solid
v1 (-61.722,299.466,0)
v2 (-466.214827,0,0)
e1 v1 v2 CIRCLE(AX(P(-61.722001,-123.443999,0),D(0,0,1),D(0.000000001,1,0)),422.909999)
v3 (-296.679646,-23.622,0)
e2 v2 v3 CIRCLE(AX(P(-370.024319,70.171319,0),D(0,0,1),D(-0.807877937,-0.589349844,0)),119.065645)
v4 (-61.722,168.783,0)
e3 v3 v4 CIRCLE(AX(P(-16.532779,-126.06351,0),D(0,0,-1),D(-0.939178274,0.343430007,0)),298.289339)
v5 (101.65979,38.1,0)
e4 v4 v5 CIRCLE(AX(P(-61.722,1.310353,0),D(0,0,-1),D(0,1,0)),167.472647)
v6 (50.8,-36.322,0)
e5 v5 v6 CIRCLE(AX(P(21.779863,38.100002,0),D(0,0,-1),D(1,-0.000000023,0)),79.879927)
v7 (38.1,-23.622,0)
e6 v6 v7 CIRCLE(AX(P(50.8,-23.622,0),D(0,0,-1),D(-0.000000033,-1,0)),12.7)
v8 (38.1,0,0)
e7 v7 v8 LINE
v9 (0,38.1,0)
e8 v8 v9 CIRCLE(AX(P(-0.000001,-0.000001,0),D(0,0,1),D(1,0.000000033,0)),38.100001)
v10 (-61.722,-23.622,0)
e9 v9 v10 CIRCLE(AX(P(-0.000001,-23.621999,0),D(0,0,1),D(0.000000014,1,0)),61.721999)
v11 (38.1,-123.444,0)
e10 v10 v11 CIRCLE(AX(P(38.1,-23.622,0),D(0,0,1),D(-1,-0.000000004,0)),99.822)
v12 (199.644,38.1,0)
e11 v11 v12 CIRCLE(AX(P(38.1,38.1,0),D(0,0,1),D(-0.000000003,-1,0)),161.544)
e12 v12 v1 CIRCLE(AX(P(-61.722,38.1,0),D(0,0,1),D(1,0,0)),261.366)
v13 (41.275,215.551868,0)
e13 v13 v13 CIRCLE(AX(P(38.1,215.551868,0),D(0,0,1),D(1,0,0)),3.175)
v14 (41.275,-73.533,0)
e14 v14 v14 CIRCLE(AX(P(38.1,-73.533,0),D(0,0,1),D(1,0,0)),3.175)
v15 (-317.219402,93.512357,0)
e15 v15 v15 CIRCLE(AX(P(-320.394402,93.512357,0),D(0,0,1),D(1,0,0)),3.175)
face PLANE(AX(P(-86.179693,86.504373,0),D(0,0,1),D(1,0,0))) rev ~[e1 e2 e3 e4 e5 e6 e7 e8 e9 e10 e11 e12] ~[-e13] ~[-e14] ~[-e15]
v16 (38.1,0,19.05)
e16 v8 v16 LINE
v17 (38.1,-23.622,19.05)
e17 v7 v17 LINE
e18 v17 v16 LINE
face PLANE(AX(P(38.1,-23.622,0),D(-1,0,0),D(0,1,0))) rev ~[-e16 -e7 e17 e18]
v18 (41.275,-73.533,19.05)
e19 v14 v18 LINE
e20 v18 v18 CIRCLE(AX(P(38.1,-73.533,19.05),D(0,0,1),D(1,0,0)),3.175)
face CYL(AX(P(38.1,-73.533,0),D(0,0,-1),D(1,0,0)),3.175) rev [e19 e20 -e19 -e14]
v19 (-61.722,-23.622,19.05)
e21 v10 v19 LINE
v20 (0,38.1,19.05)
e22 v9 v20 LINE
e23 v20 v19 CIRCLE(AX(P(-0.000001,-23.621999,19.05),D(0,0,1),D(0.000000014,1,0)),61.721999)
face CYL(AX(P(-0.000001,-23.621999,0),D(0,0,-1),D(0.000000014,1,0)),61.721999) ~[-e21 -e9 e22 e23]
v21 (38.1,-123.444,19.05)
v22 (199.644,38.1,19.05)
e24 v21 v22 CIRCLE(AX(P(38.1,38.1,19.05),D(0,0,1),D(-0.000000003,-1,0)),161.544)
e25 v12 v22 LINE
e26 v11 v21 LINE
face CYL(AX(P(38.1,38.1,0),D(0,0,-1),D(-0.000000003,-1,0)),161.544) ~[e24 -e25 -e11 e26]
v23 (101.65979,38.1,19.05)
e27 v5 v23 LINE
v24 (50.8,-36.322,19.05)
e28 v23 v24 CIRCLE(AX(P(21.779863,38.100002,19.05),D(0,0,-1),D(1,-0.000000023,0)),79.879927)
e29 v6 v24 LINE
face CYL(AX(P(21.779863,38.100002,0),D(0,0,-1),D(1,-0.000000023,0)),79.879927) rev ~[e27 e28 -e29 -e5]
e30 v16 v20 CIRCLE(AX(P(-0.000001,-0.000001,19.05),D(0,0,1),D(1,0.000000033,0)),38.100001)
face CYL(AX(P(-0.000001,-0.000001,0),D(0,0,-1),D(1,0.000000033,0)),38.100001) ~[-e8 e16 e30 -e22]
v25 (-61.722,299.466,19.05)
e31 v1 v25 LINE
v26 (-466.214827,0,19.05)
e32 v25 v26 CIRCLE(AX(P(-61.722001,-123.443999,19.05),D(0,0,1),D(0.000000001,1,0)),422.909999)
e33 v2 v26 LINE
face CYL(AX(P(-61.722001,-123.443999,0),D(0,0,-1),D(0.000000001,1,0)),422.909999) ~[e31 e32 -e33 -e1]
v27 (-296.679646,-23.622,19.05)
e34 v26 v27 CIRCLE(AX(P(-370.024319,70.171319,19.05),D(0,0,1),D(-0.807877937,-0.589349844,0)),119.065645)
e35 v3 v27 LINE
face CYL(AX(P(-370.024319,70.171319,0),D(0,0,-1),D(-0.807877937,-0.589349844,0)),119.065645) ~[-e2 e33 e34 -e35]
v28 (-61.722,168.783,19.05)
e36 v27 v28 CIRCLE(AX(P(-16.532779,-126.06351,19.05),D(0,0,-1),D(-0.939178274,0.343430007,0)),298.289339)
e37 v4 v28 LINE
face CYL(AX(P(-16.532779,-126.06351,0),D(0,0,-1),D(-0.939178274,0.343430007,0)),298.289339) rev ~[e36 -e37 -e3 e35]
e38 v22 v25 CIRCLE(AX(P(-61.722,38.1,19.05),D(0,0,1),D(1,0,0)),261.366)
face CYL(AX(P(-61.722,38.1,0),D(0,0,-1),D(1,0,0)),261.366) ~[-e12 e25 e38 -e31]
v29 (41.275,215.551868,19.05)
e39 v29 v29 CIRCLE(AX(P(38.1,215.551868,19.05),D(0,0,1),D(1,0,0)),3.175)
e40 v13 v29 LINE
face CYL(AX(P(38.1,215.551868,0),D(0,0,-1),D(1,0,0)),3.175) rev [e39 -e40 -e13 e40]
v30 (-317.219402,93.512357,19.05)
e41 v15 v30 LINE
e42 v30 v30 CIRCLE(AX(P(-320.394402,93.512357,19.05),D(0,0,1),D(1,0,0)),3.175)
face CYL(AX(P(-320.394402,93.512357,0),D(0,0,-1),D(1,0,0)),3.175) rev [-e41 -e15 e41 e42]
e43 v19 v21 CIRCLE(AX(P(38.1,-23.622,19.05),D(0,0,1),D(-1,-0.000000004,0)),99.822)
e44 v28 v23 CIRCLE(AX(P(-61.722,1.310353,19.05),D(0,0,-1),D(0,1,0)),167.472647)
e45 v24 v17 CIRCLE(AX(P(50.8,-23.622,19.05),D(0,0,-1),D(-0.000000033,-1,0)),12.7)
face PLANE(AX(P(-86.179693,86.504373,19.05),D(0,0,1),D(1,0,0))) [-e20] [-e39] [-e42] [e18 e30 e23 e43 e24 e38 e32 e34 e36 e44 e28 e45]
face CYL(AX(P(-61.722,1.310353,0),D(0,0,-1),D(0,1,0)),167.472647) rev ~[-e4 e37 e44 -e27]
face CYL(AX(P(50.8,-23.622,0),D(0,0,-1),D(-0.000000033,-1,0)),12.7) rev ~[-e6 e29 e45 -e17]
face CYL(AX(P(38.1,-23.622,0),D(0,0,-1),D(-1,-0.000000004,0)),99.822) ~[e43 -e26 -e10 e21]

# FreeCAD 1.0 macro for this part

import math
import FreeCAD as App
import Part
import Sketcher

V = App.Vector
Q = App.Units.Quantity

doc = App.newDocument("Part")
params = doc.addObject("Spreadsheet::Sheet", "Params")
for row, (alias, value) in enumerate([
    ("sketch1_radius", "1.5 in"),
    ("sketch1_radius2", "0.5 in"),
    ("sketch1_diameter", "0.25 in"),
    ("sketch1_radius3", "2.43 in"),
    ("pad1_length", "0.75 in"),
], start=1):
    params.set(f"A{row}", alias)
    params.set(f"B{row}", "=" + value)
    params.setAlias(f"B{row}", alias)

body = doc.addObject("PartDesign::Body", "Body")

# Sketch on XY plane
sketch1 = doc.addObject("Sketcher::SketchObject", "Sketch")
body.addObject(sketch1)
sketch1.AttachmentSupport = (doc.XY_Plane, [""])
sketch1.MapMode = "FlatFace"
sketch1.addGeometry([
    Part.LineSegment(V(38.1, -23.622, 0), V(38.1, 0, 0)),  # 0
    Part.ArcOfCircle(Part.Circle(V(-0.000001, -0.000001, 0), V(0, 0, 1), 38.100001), math.radians(0.000002), math.radians(89.999998)),  # 1
    Part.ArcOfCircle(Part.Circle(V(-0.000001, -23.621999, 0), V(0, 0, 1), 61.721999), math.radians(89.999999), math.radians(180.000001)),  # 2
    Part.ArcOfCircle(Part.Circle(V(38.1, -23.622, 0), V(0, 0, 1), 99.822), math.radians(-180), math.radians(-90)),  # 3
    Part.ArcOfCircle(Part.Circle(V(38.1, 38.1, 0), V(0, 0, 1), 161.544), math.radians(-90), math.radians(0)),  # 4
    Part.ArcOfCircle(Part.Circle(V(-61.722, 38.1, 0), V(0, 0, 1), 261.366), math.radians(0), math.radians(90)),  # 5
    Part.ArcOfCircle(Part.Circle(V(-61.722001, -123.443999, 0), V(0, 0, 1), 422.909999), math.radians(90), math.radians(163.028745)),  # 6
    Part.ArcOfCircle(Part.Circle(V(-370.024319, 70.171319, 0), V(0, 0, 1), 119.065645), math.radians(-143.889115), math.radians(-51.975238)),  # 7
    Part.ArcOfCircle(Part.Circle(V(-16.532779, -126.06351, 0), V(0, 0, 1), 298.289339), math.radians(98.71355), math.radians(159.914013)),  # 8
    Part.ArcOfCircle(Part.Circle(V(-61.722, 1.310353, 0), V(0, 0, 1), 167.472647), math.radians(12.689978), math.radians(90)),  # 9
    Part.ArcOfCircle(Part.Circle(V(21.779863, 38.100002, 0), V(0, 0, 1), 79.879927), math.radians(-68.697186), math.radians(-0.000001)),  # 10
    Part.ArcOfCircle(Part.Circle(V(50.8, -23.622, 0), V(0, 0, 1), 12.7), math.radians(-179.999998), math.radians(-90.000002)),  # 11
    Part.Circle(V(38.1, -73.533, 0), V(0, 0, 1), 3.175),  # 12
    Part.Circle(V(-320.394402, 93.512357, 0), V(0, 0, 1), 3.175),  # 13
    Part.Circle(V(38.1, 215.551868, 0), V(0, 0, 1), 3.175),  # 14
], False)
sketch1.addConstraint([
    Sketcher.Constraint("Tangent", 0, 2, 1, 1),
    Sketcher.Constraint("Tangent", 1, 2, 2, 1),
    Sketcher.Constraint("Tangent", 2, 2, 3, 1),
    Sketcher.Constraint("Tangent", 3, 2, 4, 1),
    Sketcher.Constraint("Tangent", 4, 2, 5, 1),
    Sketcher.Constraint("Tangent", 5, 2, 6, 1),
    Sketcher.Constraint("Coincident", 6, 2, 7, 1),
    Sketcher.Constraint("Coincident", 7, 2, 8, 2),
    Sketcher.Constraint("Coincident", 8, 1, 9, 2),
    Sketcher.Constraint("Coincident", 9, 1, 10, 2),
    Sketcher.Constraint("Coincident", 10, 1, 11, 2),
    Sketcher.Constraint("Tangent", 11, 1, 0, 1),
    Sketcher.Constraint("Vertical", 0),
    Sketcher.Constraint("Coincident", 1, 3, -1, 1),
    Sketcher.Constraint("Coincident", 11, 1, 3, 3),
    Sketcher.Constraint("Equal", 12, 13),
    Sketcher.Constraint("Equal", 13, 14),
    Sketcher.Constraint("PointOnObject", 2, 3, -2),
    Sketcher.Constraint("PointOnObject", 6, 2, -1),
    Sketcher.Constraint("Horizontal", 2, 3, 3, 3),
    Sketcher.Constraint("Horizontal", 4, 3, 5, 3),
    Sketcher.Constraint("Horizontal", 5, 3, 10, 3),
    Sketcher.Constraint("Horizontal", 10, 3, 1, 2),
    Sketcher.Constraint("Horizontal", 6, 3, 3, 2),
    Sketcher.Constraint("Horizontal", 2, 2, 7, 2),
    Sketcher.Constraint("Horizontal", 4, 2, 9, 1),
    Sketcher.Constraint("Vertical", 3, 3, 4, 3),
    Sketcher.Constraint("Vertical", 5, 3, 6, 3),
    Sketcher.Constraint("Vertical", 6, 3, 9, 3),
    Sketcher.Constraint("Vertical", 4, 3, 12, 3),
    Sketcher.Constraint("Vertical", 12, 3, 14, 3),
    Sketcher.Constraint("Vertical", 9, 3, 2, 2),
    Sketcher.Constraint("Vertical", 5, 2, 8, 1),
    Sketcher.Constraint("Vertical", 11, 3, 10, 1),
    Sketcher.Constraint("Radius", 1, Q("1.5 in")),
    Sketcher.Constraint("Radius", 11, Q("0.5 in")),
    Sketcher.Constraint("Diameter", 12, Q("0.25 in")),
    Sketcher.Constraint("Radius", 2, Q("2.43 in")),
    Sketcher.Constraint("DistanceY", 9, 3, 13, 3, Q("3.6300001 in")),
    Sketcher.Constraint("DistanceY", 12, 3, -1, 1, Q("2.895 in")),
    Sketcher.Constraint("DistanceY", -1, 1, 8, 1, Q("6.645 in")),
    Sketcher.Constraint("Radius", 8, Q("298.289339 mm")),
    Sketcher.Constraint("Radius", 7, Q("119.065645 mm")),
    Sketcher.Constraint("Radius", 9, Q("167.472647 mm")),
    Sketcher.Constraint("DistanceX", 13, 3, -1, 1, Q("320.394402 mm")),
    Sketcher.Constraint("DistanceX", 7, 3, -1, 1, Q("370.024319 mm")),
    Sketcher.Constraint("DistanceY", -1, 1, 14, 3, Q("215.551868 mm")),
])
sketch1.setExpression("Constraints[34]", "Params.sketch1_radius")
sketch1.setExpression("Constraints[35]", "Params.sketch1_radius2")
sketch1.setExpression("Constraints[36]", "Params.sketch1_diameter")
sketch1.setExpression("Constraints[37]", "Params.sketch1_radius3")
pad1 = doc.addObject("PartDesign::Pad", "Pad")
body.addObject(pad1)
pad1.Profile = sketch1
pad1.setExpression("Length", "Params.pad1_length")

doc.recompute()
